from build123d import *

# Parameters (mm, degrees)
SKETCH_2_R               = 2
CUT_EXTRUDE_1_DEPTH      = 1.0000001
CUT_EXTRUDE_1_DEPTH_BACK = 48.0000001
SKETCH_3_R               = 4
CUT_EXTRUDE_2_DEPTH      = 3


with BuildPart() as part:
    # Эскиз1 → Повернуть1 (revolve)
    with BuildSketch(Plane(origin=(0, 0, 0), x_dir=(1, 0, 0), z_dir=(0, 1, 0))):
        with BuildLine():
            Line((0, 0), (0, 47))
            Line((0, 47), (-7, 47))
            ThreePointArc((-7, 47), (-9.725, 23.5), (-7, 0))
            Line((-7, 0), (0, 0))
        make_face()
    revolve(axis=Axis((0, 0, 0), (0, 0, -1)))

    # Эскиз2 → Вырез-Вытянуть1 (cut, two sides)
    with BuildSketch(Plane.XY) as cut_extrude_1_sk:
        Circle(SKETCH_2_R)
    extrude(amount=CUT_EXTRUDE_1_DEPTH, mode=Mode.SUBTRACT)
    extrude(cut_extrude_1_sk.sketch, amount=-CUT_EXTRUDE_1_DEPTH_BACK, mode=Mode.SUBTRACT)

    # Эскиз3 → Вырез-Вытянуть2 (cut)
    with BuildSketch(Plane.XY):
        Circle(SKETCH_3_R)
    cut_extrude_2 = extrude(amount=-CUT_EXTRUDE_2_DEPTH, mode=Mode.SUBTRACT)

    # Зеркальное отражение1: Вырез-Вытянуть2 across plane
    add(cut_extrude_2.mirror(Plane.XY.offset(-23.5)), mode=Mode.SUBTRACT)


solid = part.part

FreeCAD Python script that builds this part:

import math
import FreeCAD as App
import Part
import Sketcher

doc = App.newDocument("Part")
body = doc.addObject("PartDesign::Body", "Body")

sketch1 = body.newObject("Sketcher::SketchObject", "Sketch")
sketch1.AttachmentSupport = (doc.getObject("XZ_Plane"), [""])
sketch1.MapMode = "FlatFace"
sketch1.addGeometry([
    Part.LineSegment(App.Vector(0, 0, 0), App.Vector(0, -47, 0)),
    Part.LineSegment(App.Vector(0, -47, 0), App.Vector(-7, -47, 0)),
    Part.ArcOfCircle(Part.Circle(App.Vector(93, -24, 0), App.Vector(0, 0, 1), 103), math.radians(167), math.radians(193)),
    Part.LineSegment(App.Vector(-7, 0, 0), App.Vector(0, 0, 0)),
], False)
sketch1.addConstraint([
    Sketcher.Constraint("Coincident", 0, 2, 1, 1),
    Sketcher.Constraint("Coincident", 1, 2, 2, 2),
    Sketcher.Constraint("Coincident", 2, 1, 3, 1),
    Sketcher.Constraint("Coincident", 3, 2, 0, 1),
    Sketcher.Constraint("Vertical", 0),
    Sketcher.Constraint("Horizontal", 1),
    Sketcher.Constraint("Horizontal", 3),
    Sketcher.Constraint("Coincident", 3, 2, -1, 1),
    Sketcher.Constraint("Vertical", 1, 2, 2, 1),
    Sketcher.Constraint("DistanceX", 1, 2, 1, 1, 7.0),
    Sketcher.Constraint("DistanceY", 0, 2, 0, 1, 47.0),
    Sketcher.Constraint("Radius", 2, 102.692775),
])
revolution = body.newObject("PartDesign::Revolution", "Revolution")
revolution.Profile = sketch1
revolution.ReferenceAxis = (sketch1, ["V_Axis"])
revolution.Angle = 360

sketch2 = body.newObject("Sketcher::SketchObject", "Sketch001")
sketch2.AttachmentSupport = (doc.getObject("XY_Plane"), [""])
sketch2.MapMode = "FlatFace"
sketch2.addGeometry(Part.Circle(App.Vector(0, 0, 0), App.Vector(0, 0, 1), 2), False)
sketch2.addConstraint([
    Sketcher.Constraint("Coincident", 0, 3, -1, 1),
    Sketcher.Constraint("Diameter", 0, 4.0),
])
pocket1 = body.newObject("PartDesign::Pocket", "Pocket")
pocket1.Profile = sketch2
pocket1.Type = "ThroughAll"
pocket1.Midplane = True

sketch3 = body.newObject("Sketcher::SketchObject", "Sketch002")
sketch3.AttachmentSupport = (doc.getObject("XY_Plane"), [""])
sketch3.MapMode = "FlatFace"
sketch3.addGeometry(Part.Circle(App.Vector(0, 0, 0), App.Vector(0, 0, 1), 4), False)
sketch3.addConstraint([
    Sketcher.Constraint("Coincident", 0, 3, -1, 1),
    Sketcher.Constraint("Diameter", 0, 8.0),
])
pocket2 = body.newObject("PartDesign::Pocket", "Pocket001")
pocket2.Profile = sketch3
pocket2.Length = 3
doc.recompute()

datumplane = body.newObject("PartDesign::Plane", "DatumPlane")
datumplane.AttachmentSupport = (doc.getObject("XY_Plane"), [""])
datumplane.MapMode = "FlatFace"
datumplane.AttachmentOffset = App.Placement(App.Vector(0, 0, -23.5), App.Rotation())
mirrored = body.newObject("PartDesign::Mirrored", "Mirrored")
mirrored.Originals = [pocket2]
mirrored.MirrorPlane = (datumplane, [""])
body.Tip = mirrored

doc.recompute()
